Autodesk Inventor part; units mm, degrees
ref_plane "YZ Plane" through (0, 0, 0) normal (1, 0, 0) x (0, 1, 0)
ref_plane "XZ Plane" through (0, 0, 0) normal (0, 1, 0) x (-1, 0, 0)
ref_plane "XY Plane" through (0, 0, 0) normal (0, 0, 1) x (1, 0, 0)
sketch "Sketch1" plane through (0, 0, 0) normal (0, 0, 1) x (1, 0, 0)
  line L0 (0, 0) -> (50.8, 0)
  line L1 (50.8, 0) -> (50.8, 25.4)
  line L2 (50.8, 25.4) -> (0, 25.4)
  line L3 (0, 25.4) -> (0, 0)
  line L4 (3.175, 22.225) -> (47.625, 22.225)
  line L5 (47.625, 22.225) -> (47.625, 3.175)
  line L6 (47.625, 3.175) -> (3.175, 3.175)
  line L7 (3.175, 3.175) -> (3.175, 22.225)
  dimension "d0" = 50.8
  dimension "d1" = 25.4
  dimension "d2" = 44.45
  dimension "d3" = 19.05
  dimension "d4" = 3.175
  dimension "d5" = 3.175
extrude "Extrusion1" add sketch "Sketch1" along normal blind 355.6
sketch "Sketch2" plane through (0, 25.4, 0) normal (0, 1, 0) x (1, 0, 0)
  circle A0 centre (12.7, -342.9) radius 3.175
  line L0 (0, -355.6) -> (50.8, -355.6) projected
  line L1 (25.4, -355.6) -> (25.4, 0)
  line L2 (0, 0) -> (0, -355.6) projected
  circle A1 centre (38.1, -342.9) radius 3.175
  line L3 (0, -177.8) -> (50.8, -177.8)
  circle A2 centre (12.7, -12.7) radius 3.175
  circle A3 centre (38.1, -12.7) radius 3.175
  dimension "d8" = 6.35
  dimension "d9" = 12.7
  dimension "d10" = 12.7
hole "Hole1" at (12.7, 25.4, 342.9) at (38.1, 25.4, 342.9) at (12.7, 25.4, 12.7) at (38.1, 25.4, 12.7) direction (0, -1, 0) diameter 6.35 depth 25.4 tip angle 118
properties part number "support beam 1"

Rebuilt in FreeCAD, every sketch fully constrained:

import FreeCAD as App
import Part
import Sketcher
from FreeCAD import Vector
Q = App.Units.Quantity

doc = App.newDocument("Part")
params = doc.addObject("Spreadsheet::Sheet", "Params")
for row, (alias, value) in enumerate([
    ("sketch1_width", "2 in"),
    ("sketch1_height", "1 in"),
    ("sketch1_width2", "1.75 in"),
    ("sketch1_height2", "0.75 in"),
    ("pad1_length", "14 in"),
    ("sketch2_diameter", "0.25 in"),
    ("hole_diameter", "0.25 in"),
    ("hole_depth", "1 in"),
], start=1):
    params.set(f"A{row}", alias)
    params.set(f"B{row}", "=" + value)
    params.setAlias(f"B{row}", alias)

body = doc.addObject("PartDesign::Body", "Body")

# Sketch on XY plane
sketch1 = body.newObject("Sketcher::SketchObject", "Sketch")
sketch1.AttachmentSupport = (doc.getObject("XY_Plane"), [""])
sketch1.MapMode = "FlatFace"
sketch1.addGeometry(Part.LineSegment(Vector(0, 25, 0), Vector(0, 0, 0)), False)
sketch1.addGeometry(Part.LineSegment(Vector(0, 0, 0), Vector(51, 0, 0)), False)
sketch1.addGeometry(Part.LineSegment(Vector(51, 0, 0), Vector(51, 25, 0)), False)
sketch1.addGeometry(Part.LineSegment(Vector(51, 25, 0), Vector(0, 25, 0)), False)
sketch1.addGeometry(Part.LineSegment(Vector(3, 3, 0), Vector(3, 22, 0)), False)
sketch1.addGeometry(Part.LineSegment(Vector(3, 22, 0), Vector(48, 22, 0)), False)
sketch1.addGeometry(Part.LineSegment(Vector(48, 22, 0), Vector(48, 3, 0)), False)
sketch1.addGeometry(Part.LineSegment(Vector(48, 3, 0), Vector(3, 3, 0)), False)
sketch1.addConstraint(Sketcher.Constraint("Coincident", 0, 2, 1, 1))
sketch1.addConstraint(Sketcher.Constraint("Coincident", 1, 2, 2, 1))
sketch1.addConstraint(Sketcher.Constraint("Coincident", 2, 2, 3, 1))
sketch1.addConstraint(Sketcher.Constraint("Coincident", 3, 2, 0, 1))
sketch1.addConstraint(Sketcher.Constraint("Coincident", 4, 2, 5, 1))
sketch1.addConstraint(Sketcher.Constraint("Coincident", 5, 2, 6, 1))
sketch1.addConstraint(Sketcher.Constraint("Coincident", 6, 2, 7, 1))
sketch1.addConstraint(Sketcher.Constraint("Coincident", 7, 2, 4, 1))
sketch1.addConstraint(Sketcher.Constraint("Vertical", 0))
sketch1.addConstraint(Sketcher.Constraint("Horizontal", 1))
sketch1.addConstraint(Sketcher.Constraint("Vertical", 2))
sketch1.addConstraint(Sketcher.Constraint("Horizontal", 3))
sketch1.addConstraint(Sketcher.Constraint("Vertical", 4))
sketch1.addConstraint(Sketcher.Constraint("Horizontal", 5))
sketch1.addConstraint(Sketcher.Constraint("Vertical", 6))
sketch1.addConstraint(Sketcher.Constraint("Horizontal", 7))
sketch1.addConstraint(Sketcher.Constraint("Coincident", 0, 2, -1, 1))
sketch1.addConstraint(Sketcher.Constraint("DistanceX", 1, 1, 1, 2, Q("2 in")))
sketch1.addConstraint(Sketcher.Constraint("DistanceY", 0, 2, 0, 1, Q("1 in")))
sketch1.addConstraint(Sketcher.Constraint("DistanceX", 5, 1, 5, 2, Q("1.75 in")))
sketch1.addConstraint(Sketcher.Constraint("DistanceY", 4, 1, 4, 2, Q("0.75 in")))
sketch1.addConstraint(Sketcher.Constraint("DistanceX", -1, 1, 4, 2, Q("0.125 in")))
sketch1.addConstraint(Sketcher.Constraint("DistanceY", -1, 1, 6, 2, Q("0.125 in")))
sketch1.setExpression("Constraints[17]", "Params.sketch1_width")
sketch1.setExpression("Constraints[18]", "Params.sketch1_height")
sketch1.setExpression("Constraints[19]", "Params.sketch1_width2")
sketch1.setExpression("Constraints[20]", "Params.sketch1_height2")
pad1 = body.newObject("PartDesign::Pad", "Pad")
pad1.Profile = sketch1
pad1.setExpression("Length", "Params.pad1_length")

# Sketch on XZ plane
sketch2 = body.newObject("Sketcher::SketchObject", "Sketch001")
sketch2.AttachmentSupport = (doc.getObject("XZ_Plane"), [""])
sketch2.MapMode = "FlatFace"
sketch2.AttachmentOffset = App.Placement(Vector(0, 0, -1 * 25.4), App.Rotation())
sketch2.addGeometry(Part.Circle(Vector(12.7, 342.9, 0), Vector(0, 0, 1), 3.2), False)
sketch2.addGeometry(Part.Circle(Vector(38.1, 342.9, 0), Vector(0, 0, 1), 3.2), False)
sketch2.addGeometry(Part.Circle(Vector(12.7, 12.7, 0), Vector(0, 0, 1), 3.2), False)
sketch2.addGeometry(Part.Circle(Vector(38.1, 12.7, 0), Vector(0, 0, 1), 3.2), False)
sketch2.addConstraint(Sketcher.Constraint("Equal", 0, 1))
sketch2.addConstraint(Sketcher.Constraint("Equal", 1, 2))
sketch2.addConstraint(Sketcher.Constraint("Equal", 2, 3))
sketch2.addConstraint(Sketcher.Constraint("Horizontal", 0, 3, 1, 3))
sketch2.addConstraint(Sketcher.Constraint("Horizontal", 2, 3, 3, 3))
sketch2.addConstraint(Sketcher.Constraint("Vertical", 0, 3, 2, 3))
sketch2.addConstraint(Sketcher.Constraint("Vertical", 1, 3, 3, 3))
sketch2.addConstraint(Sketcher.Constraint("Diameter", 0, Q("0.25 in")))
sketch2.addConstraint(Sketcher.Constraint("DistanceX", 0, 3, 1, 3, Q("1 in")))
sketch2.addConstraint(Sketcher.Constraint("DistanceY", 2, 3, 0, 3, Q("13 in")))
sketch2.addConstraint(Sketcher.Constraint("DistanceX", -1, 1, 0, 3, Q("0.5 in")))
sketch2.addConstraint(Sketcher.Constraint("DistanceY", -1, 1, 0, 3, Q("13.5 in")))
sketch2.setExpression("Constraints[7]", "Params.sketch2_diameter")
doc.recompute()
hole = body.newObject("PartDesign::Hole", "Hole")
hole.Profile = sketch2
hole.ThreadType = "None"
hole.setExpression("Diameter", "Params.hole_diameter")
hole.DepthType = "Dimension"
hole.setExpression("Depth", "Params.hole_depth")
hole.DrillPoint = "Angled"
hole.DrillPointAngle = 118
hole.Reversed = True

doc.recompute()
